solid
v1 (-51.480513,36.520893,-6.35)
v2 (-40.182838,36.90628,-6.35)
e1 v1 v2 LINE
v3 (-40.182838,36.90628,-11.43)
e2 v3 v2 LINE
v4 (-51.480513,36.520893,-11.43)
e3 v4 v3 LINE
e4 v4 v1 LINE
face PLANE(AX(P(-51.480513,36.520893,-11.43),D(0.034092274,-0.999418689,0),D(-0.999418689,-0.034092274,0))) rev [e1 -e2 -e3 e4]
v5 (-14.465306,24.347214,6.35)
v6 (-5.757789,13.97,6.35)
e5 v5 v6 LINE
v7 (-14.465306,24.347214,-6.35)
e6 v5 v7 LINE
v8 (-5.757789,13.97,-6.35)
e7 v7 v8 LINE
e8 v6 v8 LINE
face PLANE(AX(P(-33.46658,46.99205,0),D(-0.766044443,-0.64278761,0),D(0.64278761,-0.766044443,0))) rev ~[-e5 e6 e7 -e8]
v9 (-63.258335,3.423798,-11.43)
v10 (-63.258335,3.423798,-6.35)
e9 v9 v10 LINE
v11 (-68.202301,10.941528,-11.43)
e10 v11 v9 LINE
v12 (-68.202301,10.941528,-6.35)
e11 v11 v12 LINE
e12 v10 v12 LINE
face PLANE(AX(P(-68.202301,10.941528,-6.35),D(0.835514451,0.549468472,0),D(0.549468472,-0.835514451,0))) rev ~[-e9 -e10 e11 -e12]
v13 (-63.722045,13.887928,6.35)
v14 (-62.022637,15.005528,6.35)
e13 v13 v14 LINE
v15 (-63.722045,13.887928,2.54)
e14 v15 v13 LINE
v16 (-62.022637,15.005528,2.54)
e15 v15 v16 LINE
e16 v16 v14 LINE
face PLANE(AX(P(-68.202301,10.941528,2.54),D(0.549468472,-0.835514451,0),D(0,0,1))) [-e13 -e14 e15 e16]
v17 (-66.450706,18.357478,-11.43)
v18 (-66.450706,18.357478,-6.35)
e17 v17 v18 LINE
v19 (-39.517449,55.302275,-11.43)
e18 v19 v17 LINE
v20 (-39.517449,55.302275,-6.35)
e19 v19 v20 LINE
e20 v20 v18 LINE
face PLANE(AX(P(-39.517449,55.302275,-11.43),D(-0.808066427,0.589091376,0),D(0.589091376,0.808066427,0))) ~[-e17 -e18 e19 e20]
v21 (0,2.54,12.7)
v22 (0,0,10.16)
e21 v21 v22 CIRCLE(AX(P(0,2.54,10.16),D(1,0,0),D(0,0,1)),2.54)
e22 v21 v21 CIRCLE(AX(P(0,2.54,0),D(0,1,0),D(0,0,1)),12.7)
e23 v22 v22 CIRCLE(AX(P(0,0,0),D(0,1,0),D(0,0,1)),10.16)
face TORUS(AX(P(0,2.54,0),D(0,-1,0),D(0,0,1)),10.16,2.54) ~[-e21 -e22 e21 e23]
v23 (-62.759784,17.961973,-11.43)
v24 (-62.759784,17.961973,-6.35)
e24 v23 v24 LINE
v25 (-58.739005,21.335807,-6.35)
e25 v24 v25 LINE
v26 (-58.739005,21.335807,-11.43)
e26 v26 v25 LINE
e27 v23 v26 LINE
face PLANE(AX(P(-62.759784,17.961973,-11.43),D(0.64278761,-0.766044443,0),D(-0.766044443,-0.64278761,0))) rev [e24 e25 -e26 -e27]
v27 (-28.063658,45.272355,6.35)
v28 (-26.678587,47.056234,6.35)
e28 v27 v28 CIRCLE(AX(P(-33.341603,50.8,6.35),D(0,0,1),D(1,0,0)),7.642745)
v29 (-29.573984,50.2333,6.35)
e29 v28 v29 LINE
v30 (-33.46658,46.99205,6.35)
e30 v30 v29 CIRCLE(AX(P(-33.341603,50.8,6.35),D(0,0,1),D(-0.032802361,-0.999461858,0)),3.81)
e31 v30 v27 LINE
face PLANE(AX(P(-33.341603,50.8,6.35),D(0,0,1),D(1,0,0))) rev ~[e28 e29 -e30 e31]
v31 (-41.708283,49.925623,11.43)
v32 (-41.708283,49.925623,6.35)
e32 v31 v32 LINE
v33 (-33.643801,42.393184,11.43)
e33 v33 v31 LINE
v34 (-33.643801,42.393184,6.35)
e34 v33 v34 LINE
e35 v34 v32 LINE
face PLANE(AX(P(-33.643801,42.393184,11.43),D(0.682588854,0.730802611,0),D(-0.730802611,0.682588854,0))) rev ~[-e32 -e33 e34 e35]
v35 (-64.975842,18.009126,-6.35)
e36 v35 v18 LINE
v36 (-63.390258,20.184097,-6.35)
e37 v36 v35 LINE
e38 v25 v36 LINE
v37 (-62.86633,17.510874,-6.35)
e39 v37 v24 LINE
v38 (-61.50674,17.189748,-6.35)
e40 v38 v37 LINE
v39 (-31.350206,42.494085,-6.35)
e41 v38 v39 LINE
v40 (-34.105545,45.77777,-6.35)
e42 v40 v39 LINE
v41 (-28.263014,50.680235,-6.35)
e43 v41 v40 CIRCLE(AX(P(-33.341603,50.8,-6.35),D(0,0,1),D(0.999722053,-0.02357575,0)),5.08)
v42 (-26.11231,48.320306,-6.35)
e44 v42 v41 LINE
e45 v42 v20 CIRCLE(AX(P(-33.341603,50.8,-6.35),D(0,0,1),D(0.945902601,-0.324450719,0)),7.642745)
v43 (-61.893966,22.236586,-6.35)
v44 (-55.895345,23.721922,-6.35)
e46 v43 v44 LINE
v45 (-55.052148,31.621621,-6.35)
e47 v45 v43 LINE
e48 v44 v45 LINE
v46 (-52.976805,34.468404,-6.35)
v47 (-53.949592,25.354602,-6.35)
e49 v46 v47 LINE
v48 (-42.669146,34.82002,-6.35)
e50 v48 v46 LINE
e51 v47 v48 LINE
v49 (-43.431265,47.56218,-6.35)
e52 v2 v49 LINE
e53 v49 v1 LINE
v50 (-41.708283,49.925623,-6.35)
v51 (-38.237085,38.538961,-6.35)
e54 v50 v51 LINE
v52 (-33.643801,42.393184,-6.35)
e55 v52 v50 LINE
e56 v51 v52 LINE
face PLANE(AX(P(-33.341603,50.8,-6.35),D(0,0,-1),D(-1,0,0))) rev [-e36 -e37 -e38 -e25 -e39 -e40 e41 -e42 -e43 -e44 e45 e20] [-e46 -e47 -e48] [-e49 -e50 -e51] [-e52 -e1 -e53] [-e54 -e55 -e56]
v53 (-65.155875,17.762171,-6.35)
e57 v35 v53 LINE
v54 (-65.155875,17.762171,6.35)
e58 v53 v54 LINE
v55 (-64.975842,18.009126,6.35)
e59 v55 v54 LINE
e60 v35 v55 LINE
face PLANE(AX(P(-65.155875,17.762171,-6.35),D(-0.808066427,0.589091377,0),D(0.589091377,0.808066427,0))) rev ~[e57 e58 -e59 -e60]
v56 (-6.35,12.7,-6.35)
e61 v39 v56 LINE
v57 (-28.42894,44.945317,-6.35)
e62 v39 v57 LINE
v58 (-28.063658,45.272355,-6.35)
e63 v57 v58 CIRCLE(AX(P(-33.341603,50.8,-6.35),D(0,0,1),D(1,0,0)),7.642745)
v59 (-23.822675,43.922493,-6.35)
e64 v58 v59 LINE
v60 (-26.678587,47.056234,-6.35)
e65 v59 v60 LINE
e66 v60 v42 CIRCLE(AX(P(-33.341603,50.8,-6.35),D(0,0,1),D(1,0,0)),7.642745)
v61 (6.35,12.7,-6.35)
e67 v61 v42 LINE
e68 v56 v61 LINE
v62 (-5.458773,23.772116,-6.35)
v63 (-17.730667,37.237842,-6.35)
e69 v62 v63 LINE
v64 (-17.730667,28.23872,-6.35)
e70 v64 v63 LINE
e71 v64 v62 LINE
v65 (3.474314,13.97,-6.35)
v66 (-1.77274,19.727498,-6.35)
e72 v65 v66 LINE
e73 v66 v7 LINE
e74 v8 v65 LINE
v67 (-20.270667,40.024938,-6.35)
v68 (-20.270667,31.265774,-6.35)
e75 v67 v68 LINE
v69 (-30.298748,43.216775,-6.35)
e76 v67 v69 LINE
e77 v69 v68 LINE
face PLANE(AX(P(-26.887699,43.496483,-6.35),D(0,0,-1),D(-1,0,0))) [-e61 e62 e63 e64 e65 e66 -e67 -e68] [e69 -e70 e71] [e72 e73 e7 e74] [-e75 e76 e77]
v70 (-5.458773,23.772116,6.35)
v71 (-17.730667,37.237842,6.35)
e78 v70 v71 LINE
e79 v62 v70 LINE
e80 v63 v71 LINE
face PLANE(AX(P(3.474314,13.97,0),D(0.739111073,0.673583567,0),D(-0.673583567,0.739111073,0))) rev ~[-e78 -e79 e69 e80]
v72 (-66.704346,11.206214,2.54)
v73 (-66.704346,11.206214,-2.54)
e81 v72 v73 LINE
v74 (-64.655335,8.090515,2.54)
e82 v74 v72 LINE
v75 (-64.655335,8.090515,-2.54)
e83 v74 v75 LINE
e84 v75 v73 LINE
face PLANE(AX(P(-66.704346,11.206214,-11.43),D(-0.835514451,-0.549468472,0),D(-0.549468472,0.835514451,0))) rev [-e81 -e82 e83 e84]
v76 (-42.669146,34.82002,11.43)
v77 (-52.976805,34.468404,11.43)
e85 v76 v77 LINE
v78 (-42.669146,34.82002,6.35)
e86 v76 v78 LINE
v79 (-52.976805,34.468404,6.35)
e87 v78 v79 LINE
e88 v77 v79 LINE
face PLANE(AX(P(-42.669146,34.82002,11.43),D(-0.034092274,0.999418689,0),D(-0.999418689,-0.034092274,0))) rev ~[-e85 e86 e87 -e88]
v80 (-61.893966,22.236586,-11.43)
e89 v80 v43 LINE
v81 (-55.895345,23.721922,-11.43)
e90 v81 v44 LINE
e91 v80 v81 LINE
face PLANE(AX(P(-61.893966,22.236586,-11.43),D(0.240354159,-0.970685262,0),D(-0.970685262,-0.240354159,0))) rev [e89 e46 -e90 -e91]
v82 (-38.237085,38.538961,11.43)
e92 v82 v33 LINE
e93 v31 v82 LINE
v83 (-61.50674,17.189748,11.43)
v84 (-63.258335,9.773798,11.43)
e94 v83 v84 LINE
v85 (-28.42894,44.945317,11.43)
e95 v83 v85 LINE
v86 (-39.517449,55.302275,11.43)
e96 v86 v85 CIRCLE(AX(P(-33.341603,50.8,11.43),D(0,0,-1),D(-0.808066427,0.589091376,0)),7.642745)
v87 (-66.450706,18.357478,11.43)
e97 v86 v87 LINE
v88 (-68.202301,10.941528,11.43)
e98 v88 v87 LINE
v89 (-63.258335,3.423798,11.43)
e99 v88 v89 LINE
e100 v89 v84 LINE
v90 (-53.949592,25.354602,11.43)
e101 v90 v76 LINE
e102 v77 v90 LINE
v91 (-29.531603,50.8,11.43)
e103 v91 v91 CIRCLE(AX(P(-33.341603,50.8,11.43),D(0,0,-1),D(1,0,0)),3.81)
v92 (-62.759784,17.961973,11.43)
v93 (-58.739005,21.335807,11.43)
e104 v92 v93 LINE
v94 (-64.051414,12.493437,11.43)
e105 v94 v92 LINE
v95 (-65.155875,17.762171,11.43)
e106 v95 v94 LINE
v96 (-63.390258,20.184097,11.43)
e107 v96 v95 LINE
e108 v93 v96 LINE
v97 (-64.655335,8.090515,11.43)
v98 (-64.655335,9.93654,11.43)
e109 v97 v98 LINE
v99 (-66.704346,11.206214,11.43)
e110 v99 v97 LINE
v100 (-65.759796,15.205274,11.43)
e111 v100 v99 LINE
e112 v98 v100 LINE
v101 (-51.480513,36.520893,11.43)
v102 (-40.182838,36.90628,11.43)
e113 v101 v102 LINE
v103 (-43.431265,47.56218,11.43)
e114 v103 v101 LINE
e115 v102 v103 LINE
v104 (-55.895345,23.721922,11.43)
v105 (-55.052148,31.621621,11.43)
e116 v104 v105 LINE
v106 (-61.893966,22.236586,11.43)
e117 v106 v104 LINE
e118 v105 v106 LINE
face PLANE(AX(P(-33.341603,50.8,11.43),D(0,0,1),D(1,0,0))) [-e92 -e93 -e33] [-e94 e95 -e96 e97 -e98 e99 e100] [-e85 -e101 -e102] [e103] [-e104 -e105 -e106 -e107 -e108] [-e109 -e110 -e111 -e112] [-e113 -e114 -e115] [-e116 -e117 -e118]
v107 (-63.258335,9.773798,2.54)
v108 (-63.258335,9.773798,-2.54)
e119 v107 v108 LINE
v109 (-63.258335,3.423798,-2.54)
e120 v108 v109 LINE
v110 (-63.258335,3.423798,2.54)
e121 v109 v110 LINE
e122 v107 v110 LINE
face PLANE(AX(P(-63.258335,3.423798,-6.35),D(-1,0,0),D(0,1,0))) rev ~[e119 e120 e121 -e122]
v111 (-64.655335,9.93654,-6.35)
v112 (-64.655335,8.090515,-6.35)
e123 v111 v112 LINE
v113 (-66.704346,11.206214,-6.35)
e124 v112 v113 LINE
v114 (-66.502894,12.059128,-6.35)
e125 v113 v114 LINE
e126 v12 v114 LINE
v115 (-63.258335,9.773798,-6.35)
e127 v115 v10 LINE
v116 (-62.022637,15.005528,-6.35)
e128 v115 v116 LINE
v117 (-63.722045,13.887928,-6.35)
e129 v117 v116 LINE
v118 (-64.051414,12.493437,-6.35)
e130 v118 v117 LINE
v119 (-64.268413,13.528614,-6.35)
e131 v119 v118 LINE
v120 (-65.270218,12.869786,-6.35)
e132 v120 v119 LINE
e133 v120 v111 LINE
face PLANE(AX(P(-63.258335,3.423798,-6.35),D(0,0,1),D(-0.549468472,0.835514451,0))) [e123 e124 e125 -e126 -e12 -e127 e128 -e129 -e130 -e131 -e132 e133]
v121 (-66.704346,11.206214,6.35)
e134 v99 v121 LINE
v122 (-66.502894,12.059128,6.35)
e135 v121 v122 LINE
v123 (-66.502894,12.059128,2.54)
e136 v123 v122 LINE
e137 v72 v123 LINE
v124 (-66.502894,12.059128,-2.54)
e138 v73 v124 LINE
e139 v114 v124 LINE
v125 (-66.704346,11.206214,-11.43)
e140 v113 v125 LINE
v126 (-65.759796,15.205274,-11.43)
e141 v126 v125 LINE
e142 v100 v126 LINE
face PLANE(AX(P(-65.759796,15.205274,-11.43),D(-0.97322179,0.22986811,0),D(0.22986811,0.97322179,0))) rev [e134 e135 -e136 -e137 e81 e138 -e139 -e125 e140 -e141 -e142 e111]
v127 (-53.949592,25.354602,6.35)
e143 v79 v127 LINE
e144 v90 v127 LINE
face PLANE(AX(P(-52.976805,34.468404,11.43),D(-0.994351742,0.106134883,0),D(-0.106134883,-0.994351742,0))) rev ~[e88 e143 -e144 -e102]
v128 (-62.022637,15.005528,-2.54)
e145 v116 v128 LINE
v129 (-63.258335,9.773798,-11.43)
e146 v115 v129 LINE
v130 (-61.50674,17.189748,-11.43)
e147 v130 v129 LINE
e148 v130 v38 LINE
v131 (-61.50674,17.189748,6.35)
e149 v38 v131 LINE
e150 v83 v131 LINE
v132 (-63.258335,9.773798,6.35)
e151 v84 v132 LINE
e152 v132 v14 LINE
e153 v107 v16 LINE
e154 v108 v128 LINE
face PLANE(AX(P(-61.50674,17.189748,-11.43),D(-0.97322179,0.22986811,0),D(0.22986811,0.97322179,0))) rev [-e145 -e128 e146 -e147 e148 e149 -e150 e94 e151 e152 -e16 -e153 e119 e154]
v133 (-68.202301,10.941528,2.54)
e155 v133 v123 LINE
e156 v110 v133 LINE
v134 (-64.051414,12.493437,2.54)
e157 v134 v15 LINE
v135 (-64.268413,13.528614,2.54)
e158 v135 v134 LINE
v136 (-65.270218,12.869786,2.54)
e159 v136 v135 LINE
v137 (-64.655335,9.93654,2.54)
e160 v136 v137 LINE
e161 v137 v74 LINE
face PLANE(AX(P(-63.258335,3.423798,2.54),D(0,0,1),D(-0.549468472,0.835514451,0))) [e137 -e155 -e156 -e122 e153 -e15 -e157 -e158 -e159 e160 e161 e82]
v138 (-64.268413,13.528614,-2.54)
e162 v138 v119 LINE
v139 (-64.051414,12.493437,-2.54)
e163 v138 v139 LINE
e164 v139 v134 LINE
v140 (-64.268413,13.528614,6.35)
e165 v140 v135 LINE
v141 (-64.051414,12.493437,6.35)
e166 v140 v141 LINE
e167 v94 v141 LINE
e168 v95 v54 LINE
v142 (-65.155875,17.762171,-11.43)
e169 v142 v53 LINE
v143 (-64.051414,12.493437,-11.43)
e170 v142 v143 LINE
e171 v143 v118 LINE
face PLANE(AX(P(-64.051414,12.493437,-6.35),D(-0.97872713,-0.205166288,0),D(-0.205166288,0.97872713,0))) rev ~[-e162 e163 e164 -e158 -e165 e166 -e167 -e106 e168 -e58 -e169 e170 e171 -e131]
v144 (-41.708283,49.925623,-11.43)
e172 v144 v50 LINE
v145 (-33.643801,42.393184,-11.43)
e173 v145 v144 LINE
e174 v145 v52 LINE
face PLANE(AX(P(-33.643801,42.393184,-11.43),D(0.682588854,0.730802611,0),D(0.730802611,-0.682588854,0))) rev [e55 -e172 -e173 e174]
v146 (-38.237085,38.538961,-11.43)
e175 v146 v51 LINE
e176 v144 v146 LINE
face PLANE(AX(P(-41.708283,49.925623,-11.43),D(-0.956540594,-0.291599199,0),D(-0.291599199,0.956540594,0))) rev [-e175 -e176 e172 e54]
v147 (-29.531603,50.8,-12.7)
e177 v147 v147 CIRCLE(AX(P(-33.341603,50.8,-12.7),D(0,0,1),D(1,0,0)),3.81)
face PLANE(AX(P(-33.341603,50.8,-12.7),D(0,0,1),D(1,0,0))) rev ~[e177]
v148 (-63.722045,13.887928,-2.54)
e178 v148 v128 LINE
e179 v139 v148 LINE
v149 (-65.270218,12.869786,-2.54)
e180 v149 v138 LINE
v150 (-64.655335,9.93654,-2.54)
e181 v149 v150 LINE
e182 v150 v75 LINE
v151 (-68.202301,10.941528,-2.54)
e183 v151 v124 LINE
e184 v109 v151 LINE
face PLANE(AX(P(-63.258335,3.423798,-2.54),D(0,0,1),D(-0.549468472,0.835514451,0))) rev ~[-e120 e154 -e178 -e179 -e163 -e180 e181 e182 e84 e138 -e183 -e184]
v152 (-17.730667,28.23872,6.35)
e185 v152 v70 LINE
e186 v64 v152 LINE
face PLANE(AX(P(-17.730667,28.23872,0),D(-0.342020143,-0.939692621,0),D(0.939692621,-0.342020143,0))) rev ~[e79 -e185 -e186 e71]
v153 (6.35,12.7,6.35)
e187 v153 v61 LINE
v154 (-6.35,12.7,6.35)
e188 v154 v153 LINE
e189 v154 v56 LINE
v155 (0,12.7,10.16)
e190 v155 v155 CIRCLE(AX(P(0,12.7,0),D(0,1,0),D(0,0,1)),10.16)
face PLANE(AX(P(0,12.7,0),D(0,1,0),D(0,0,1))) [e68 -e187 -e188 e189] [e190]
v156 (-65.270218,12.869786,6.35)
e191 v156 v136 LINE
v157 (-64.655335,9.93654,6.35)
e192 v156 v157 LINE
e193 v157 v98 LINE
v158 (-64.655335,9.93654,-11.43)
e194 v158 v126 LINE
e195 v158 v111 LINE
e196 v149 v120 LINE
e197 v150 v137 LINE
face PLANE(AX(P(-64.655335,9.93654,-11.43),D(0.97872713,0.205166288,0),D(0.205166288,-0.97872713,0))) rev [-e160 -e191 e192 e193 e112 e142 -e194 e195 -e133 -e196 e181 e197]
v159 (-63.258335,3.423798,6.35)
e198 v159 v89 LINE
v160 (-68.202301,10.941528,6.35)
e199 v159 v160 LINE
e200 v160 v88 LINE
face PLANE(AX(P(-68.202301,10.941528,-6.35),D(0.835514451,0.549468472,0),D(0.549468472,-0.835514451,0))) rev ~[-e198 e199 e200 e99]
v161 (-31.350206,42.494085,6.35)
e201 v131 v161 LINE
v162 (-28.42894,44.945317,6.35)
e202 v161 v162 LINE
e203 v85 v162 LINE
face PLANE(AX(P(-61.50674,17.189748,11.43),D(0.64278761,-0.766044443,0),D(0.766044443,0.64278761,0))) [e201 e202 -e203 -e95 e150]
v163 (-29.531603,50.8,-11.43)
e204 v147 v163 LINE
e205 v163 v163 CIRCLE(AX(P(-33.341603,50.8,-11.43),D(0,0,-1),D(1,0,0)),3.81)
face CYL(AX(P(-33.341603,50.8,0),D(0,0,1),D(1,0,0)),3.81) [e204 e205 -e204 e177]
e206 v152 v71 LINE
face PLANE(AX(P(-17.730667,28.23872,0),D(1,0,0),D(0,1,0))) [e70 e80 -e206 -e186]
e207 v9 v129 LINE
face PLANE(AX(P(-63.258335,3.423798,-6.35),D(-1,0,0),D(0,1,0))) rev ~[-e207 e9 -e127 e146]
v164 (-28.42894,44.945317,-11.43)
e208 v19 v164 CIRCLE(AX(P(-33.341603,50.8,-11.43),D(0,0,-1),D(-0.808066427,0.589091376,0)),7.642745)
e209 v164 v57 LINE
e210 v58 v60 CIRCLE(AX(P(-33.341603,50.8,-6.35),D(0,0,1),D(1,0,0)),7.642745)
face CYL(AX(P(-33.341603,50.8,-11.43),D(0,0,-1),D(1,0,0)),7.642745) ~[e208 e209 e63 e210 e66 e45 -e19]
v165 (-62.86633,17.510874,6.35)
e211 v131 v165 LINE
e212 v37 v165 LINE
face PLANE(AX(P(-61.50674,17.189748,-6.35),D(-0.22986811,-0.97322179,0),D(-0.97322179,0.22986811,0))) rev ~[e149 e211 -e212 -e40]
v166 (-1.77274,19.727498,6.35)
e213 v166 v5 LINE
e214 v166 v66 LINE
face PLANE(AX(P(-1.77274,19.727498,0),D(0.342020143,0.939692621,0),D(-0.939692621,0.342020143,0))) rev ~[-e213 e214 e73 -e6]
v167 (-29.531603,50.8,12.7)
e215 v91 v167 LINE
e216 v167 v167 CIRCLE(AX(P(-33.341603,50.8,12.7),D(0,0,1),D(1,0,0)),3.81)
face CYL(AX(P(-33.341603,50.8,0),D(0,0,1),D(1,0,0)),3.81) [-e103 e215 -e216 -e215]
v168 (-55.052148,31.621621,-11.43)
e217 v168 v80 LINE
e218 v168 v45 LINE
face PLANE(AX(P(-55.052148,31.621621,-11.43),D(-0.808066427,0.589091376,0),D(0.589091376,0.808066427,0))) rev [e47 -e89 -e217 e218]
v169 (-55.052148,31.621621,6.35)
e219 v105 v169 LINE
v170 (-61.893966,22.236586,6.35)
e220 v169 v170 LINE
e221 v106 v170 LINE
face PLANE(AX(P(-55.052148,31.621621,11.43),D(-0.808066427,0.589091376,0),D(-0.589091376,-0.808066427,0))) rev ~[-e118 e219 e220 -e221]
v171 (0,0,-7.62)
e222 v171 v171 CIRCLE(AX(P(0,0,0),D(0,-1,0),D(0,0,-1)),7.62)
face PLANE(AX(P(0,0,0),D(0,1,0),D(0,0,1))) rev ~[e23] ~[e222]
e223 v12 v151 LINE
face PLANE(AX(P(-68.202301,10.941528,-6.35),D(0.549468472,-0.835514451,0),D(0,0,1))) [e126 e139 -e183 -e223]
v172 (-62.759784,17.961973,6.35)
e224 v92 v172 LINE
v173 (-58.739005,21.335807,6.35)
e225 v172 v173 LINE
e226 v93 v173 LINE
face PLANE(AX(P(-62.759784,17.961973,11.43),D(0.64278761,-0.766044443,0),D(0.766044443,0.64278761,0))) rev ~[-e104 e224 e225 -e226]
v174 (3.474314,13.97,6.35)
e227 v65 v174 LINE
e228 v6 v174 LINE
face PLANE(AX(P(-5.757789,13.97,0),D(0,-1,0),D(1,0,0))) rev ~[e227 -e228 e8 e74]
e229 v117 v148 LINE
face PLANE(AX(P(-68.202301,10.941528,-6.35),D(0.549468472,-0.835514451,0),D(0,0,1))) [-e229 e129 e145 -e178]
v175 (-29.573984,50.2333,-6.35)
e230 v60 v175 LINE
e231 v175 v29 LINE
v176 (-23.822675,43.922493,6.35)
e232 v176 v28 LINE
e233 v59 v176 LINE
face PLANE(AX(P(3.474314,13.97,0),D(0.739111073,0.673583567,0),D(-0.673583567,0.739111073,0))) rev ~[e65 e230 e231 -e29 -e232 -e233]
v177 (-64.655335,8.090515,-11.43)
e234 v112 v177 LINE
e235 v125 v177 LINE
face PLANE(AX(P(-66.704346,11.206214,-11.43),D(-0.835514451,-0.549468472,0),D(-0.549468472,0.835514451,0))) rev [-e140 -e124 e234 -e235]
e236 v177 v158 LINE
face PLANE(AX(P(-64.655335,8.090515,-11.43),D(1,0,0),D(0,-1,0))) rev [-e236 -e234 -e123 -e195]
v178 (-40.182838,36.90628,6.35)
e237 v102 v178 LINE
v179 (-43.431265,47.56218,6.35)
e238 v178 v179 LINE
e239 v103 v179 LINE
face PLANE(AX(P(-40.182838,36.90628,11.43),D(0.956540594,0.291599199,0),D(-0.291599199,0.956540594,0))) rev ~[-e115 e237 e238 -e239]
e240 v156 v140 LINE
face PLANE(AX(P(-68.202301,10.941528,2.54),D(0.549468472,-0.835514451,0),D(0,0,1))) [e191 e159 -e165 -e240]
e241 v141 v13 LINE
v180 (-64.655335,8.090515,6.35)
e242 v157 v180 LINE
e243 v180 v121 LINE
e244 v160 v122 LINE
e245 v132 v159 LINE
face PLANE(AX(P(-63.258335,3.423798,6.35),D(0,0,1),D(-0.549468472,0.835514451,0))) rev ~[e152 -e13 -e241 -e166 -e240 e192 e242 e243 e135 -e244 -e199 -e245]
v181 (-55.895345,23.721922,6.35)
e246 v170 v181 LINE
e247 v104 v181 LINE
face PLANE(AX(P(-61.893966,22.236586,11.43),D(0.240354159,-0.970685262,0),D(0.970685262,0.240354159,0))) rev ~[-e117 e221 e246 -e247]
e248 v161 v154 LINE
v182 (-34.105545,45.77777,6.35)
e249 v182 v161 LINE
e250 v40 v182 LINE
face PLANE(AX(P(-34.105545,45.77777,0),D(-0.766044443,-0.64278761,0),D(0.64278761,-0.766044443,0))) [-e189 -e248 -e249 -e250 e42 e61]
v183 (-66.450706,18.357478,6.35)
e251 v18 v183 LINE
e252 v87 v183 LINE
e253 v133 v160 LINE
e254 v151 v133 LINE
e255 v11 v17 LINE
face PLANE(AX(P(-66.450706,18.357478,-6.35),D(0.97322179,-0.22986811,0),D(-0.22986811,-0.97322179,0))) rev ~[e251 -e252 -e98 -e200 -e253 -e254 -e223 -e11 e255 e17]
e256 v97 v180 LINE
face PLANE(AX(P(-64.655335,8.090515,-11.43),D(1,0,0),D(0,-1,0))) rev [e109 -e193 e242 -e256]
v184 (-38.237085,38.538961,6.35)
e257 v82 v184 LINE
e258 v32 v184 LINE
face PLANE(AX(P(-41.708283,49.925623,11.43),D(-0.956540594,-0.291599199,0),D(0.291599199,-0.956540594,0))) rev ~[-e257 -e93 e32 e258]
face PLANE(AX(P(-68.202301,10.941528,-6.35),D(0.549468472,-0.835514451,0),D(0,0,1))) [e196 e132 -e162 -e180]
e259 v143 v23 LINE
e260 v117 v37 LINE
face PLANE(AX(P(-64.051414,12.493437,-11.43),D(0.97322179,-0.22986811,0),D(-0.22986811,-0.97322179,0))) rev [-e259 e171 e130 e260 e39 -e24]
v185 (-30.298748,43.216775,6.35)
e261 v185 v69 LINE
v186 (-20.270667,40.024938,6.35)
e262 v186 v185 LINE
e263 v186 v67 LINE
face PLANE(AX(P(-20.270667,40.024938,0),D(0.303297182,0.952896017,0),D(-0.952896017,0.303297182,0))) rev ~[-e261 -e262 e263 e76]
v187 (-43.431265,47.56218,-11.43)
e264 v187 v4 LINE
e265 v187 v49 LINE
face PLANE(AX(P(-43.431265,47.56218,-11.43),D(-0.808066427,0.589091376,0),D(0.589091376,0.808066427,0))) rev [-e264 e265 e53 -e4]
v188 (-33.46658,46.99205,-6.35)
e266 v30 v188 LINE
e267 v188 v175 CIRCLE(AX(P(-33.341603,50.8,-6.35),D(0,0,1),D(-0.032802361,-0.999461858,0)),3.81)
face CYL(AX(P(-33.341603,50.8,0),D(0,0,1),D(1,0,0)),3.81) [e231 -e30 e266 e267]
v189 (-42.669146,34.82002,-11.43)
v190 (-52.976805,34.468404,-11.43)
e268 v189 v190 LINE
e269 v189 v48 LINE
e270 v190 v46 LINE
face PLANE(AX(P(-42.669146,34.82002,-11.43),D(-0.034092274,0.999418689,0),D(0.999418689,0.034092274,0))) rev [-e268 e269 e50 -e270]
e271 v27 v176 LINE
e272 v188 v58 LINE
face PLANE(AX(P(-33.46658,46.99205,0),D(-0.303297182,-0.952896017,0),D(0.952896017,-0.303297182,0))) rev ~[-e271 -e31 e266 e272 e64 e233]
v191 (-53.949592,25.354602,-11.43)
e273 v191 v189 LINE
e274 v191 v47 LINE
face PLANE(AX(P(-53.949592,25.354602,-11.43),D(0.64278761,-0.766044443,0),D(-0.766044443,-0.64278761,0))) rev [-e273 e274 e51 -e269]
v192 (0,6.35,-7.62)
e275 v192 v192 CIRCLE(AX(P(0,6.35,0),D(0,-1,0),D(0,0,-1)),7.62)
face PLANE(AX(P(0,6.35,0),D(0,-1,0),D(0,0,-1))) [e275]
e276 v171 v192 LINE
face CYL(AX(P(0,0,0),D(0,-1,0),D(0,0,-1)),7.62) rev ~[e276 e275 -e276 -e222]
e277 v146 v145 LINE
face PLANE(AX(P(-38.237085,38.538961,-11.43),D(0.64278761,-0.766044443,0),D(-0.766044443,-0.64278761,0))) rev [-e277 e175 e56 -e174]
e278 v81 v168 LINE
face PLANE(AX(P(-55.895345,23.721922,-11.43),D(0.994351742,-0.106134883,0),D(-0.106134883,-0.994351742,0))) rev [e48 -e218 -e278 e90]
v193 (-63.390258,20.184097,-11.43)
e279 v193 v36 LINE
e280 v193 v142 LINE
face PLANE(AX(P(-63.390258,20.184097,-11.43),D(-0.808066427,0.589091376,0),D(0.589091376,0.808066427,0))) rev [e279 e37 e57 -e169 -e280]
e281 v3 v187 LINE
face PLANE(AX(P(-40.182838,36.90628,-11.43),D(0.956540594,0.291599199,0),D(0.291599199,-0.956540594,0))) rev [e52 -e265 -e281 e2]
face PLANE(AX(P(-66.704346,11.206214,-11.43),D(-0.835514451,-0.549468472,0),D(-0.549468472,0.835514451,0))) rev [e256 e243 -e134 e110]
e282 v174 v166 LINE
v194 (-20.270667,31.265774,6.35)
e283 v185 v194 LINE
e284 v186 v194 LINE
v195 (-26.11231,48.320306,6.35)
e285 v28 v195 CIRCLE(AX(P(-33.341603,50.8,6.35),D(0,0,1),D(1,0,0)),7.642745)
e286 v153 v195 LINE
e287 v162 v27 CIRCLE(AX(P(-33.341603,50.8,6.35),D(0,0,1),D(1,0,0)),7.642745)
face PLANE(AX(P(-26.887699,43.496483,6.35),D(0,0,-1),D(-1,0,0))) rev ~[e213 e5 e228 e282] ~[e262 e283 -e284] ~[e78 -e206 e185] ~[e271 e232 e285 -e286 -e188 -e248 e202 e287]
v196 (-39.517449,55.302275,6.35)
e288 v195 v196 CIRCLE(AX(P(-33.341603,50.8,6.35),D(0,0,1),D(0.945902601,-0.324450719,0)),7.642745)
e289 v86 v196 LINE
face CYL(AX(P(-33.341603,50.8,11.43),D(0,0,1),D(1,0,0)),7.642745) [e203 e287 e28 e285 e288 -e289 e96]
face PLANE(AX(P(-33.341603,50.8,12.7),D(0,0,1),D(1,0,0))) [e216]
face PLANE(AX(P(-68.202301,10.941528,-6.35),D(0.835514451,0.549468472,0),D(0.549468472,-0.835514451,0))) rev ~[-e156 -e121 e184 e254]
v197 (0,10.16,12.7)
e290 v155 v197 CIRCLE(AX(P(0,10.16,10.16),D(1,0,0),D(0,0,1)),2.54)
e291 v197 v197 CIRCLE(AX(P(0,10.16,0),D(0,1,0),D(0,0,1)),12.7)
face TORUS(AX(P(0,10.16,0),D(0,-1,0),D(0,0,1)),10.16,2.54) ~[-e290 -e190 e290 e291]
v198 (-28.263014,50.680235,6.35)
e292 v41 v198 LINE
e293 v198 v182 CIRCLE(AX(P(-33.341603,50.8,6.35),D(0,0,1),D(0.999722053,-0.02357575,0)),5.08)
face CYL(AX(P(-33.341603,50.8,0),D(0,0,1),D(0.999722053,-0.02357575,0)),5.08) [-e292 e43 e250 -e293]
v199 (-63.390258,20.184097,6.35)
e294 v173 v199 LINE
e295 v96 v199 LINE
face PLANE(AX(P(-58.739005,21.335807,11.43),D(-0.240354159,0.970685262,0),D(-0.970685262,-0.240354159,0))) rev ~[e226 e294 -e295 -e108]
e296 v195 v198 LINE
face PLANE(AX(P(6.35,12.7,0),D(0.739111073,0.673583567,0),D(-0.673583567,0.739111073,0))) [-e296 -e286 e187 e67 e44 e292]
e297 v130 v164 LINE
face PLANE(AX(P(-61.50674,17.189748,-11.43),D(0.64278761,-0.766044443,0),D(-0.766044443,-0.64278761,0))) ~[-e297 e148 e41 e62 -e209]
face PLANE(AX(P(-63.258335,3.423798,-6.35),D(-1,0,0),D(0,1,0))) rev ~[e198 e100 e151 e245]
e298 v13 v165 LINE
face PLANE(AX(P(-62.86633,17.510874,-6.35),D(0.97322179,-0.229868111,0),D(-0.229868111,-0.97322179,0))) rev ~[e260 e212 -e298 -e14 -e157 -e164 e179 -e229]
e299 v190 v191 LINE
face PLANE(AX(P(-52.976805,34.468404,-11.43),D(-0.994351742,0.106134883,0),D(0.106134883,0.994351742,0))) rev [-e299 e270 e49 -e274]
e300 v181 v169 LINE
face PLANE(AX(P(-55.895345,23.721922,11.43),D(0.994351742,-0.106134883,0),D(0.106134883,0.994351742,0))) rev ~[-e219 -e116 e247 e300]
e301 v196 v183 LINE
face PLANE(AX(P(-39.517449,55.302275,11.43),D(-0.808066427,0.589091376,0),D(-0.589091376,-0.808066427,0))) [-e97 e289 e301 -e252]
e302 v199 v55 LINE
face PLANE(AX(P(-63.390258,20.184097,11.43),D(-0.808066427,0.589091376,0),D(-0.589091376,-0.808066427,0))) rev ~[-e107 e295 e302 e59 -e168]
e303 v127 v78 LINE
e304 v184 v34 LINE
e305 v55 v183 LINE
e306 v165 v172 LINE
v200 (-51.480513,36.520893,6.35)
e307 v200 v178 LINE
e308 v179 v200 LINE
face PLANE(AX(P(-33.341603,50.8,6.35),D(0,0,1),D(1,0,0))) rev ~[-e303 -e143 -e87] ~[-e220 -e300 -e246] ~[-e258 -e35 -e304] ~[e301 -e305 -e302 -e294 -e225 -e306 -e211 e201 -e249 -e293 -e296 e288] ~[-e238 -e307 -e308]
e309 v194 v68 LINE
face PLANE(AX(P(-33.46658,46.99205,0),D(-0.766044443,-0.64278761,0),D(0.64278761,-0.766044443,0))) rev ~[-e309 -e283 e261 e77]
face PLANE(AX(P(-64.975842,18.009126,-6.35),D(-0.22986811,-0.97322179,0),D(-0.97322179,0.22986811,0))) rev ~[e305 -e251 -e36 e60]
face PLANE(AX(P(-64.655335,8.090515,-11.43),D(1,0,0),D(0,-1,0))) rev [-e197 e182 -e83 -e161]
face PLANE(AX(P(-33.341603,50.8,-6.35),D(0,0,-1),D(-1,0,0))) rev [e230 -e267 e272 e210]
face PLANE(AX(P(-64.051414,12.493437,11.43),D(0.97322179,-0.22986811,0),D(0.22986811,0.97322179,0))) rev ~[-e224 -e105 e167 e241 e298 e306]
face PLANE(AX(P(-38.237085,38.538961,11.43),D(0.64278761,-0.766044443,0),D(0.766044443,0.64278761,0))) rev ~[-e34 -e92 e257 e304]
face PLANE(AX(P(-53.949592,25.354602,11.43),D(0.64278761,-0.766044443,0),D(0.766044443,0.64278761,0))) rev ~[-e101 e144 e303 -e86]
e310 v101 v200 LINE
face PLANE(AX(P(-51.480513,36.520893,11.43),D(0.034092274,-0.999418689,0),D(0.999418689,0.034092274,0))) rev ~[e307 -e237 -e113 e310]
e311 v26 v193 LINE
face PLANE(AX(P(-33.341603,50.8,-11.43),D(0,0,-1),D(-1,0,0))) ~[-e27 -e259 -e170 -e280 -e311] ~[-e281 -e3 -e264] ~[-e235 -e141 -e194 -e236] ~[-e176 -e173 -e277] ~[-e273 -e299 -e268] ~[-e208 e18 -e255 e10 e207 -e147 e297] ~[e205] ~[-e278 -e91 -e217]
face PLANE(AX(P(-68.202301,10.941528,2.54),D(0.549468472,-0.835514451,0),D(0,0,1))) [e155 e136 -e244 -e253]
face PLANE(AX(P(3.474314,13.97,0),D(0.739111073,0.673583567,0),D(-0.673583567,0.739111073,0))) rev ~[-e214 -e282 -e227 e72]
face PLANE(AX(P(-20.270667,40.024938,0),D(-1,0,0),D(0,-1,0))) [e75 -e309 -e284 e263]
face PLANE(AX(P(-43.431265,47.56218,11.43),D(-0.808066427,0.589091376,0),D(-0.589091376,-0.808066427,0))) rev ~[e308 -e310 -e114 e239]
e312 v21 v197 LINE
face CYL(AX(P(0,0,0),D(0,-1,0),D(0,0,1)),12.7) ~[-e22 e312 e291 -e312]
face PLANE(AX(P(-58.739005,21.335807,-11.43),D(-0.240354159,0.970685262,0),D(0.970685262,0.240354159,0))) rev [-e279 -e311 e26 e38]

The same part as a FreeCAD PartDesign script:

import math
import FreeCAD as App
import Part
import Sketcher
Q = App.Units.Quantity


def edges_at(feature, points):
    """Names of the edges that pass closest to the given points."""
    edges = feature.Shape.Edges
    near = lambda p: min(range(len(edges)), key=lambda i: edges[i].distToShape(Part.Vertex(*p))[0])
    return sorted({f"Edge{near(p) + 1}" for p in points})

doc = App.newDocument("Part")
body = doc.addObject("PartDesign::Body", "Body")

# Sketch on XZ plane
sketch1 = body.newObject("Sketcher::SketchObject", "Sketch")
sketch1.AttachmentSupport = (doc.getObject("XZ_Plane"), [""])
sketch1.MapMode = "FlatFace"
sketch1.addGeometry(Part.Circle(App.Vector(0, 0, 0), App.Vector(0, 0, 1), 13), False)
sketch1.addConstraint([
    Sketcher.Constraint("Coincident", 0, 3, -1, 1),
    Sketcher.Constraint("Diameter", 0, Q("1 in")),
])
pad1 = body.newObject("PartDesign::Pad", "Pad")
pad1.Profile = sketch1
pad1.Length = Q("0.5 in")
pad1.Reversed = True

# Sketch on XY plane
sketch2 = body.newObject("Sketcher::SketchObject", "Sketch001")
sketch2.AttachmentSupport = (doc.getObject("XY_Plane"), [""])
sketch2.MapMode = "FlatFace"
sketch2.addGeometry([
    Part.LineSegment(App.Vector(6, 13, 0), App.Vector(-28, 51, 0)),
    Part.ArcOfCircle(Part.Circle(App.Vector(-33, 51, 0), App.Vector(0, 0, 1), 5), math.radians(-1), math.radians(261)),
    Part.LineSegment(App.Vector(-34, 46, 0), App.Vector(-6, 13, 0)),
    Part.LineSegment(App.Vector(-6, 13, 0), App.Vector(6, 13, 0)),
], False)
sketch2.addConstraint([
    Sketcher.Constraint("Coincident", 0, 2, 1, 1),
    Sketcher.Constraint("Coincident", 1, 2, 2, 1),
    Sketcher.Constraint("Coincident", 2, 2, 3, 1),
    Sketcher.Constraint("Coincident", 3, 2, 0, 1),
    Sketcher.Constraint("Horizontal", 3),
    Sketcher.Constraint("Radius", 1, Q("0.2 in")),
    Sketcher.Constraint("DistanceX", 3, 1, 3, 2, Q("0.5 in")),
    Sketcher.Constraint("DistanceY", -1, 1, 1, 3, Q("2 in")),
    Sketcher.Constraint("Angle", 2, Q("-50 deg")),
    Sketcher.Constraint("DistanceY", -1, 1, 2, 2, Q("0.5 in")),
    Sketcher.Constraint("DistanceX", 2, 2, -1, 1, Q("0.25 in")),
    Sketcher.Constraint("Distance", 0, Q("51.38637 mm")),
    Sketcher.Constraint("DistanceY", -1, 1, 1, 2, Q("45.77777 mm")),
])
pad2 = body.newObject("PartDesign::Pad", "Pad001")
pad2.Profile = sketch2
pad2.Length = Q("0.5 in")
pad2.Midplane = True

# Sketch on XY plane
sketch3 = body.newObject("Sketcher::SketchObject", "Sketch002")
sketch3.AttachmentSupport = (doc.getObject("XY_Plane"), [""])
sketch3.MapMode = "FlatFace"
sketch3.addGeometry([
    Part.LineSegment(App.Vector(-5.8, 14, 0), App.Vector(3.5, 14, 0)),
    Part.LineSegment(App.Vector(3.5, 14, 0), App.Vector(-29.6, 50.2, 0)),
    Part.ArcOfCircle(Part.Circle(App.Vector(-33.3, 50.8, 0), App.Vector(0, 0, 1), 3.8), math.radians(-9), math.radians(268)),
    Part.LineSegment(App.Vector(-33.5, 47, 0), App.Vector(-5.8, 14, 0)),
], False)
sketch3.addConstraint([
    Sketcher.Constraint("Coincident", 0, 2, 1, 1),
    Sketcher.Constraint("Coincident", 1, 2, 2, 1),
    Sketcher.Constraint("Coincident", 2, 2, 3, 1),
    Sketcher.Constraint("Coincident", 3, 2, 0, 1),
    Sketcher.Constraint("Horizontal", 0),
    Sketcher.Constraint("Radius", 2, Q("0.15 in")),
    Sketcher.Constraint("DistanceY", -1, 1, 2, 3, Q("2 in")),
    Sketcher.Constraint("Angle", 3, Q("-50 deg")),
    Sketcher.Constraint("DistanceY", -1, 1, 0, 2, Q("0.55 in")),
    Sketcher.Constraint("DistanceY", -1, 1, 1, 2, Q("50.2333 mm")),
    Sketcher.Constraint("DistanceX", 1, 2, 0, 2, Q("33.048298 mm")),
    Sketcher.Constraint("DistanceX", 0, 1, 0, 2, Q("9.232104 mm")),
    Sketcher.Constraint("DistanceX", 2, 2, -1, 1, Q("33.46658 mm")),
])
pocket1 = body.newObject("PartDesign::Pocket", "Pocket")
pocket1.Profile = sketch3
pocket1.Length = Q("0.6 in")
pocket1.Midplane = True

# Sketch on XY plane
sketch4 = body.newObject("Sketcher::SketchObject", "Sketch003")
sketch4.AttachmentSupport = (doc.getObject("XY_Plane"), [""])
sketch4.MapMode = "FlatFace"
sketch4.addGeometry([
    Part.LineSegment(App.Vector(-20.270667, 40.024938, 0), App.Vector(-23.822675, 43.922493, 0)),  # 0
    Part.LineSegment(App.Vector(-23.822675, 43.922493, 0), App.Vector(-33.46658, 46.99205, 0)),  # 1
    Part.LineSegment(App.Vector(-33.46658, 46.99205, 0), App.Vector(-30.298748, 43.216775, 0)),  # 2
    Part.LineSegment(App.Vector(-30.298748, 43.216775, 0), App.Vector(-20.270667, 40.024938, 0)),  # 3
    Part.LineSegment(App.Vector(-20.270667, 40.024938, 0), App.Vector(-20.270667, 31.265774, 0)),  # 4
    Part.LineSegment(App.Vector(-20.270667, 31.265774, 0), App.Vector(-17.730667, 28.23872, 0)),  # 5
    Part.LineSegment(App.Vector(-17.730667, 28.23872, 0), App.Vector(-17.730667, 37.237842, 0)),  # 6
    Part.LineSegment(App.Vector(-17.730667, 37.237842, 0), App.Vector(-20.270667, 40.024938, 0)),  # 7
    Part.LineSegment(App.Vector(-1.77274, 19.727498, 0), App.Vector(-5.458773, 23.772116, 0)),  # 8
    Part.LineSegment(App.Vector(-5.458773, 23.772116, 0), App.Vector(-17.730667, 28.23872, 0)),  # 9
    Part.LineSegment(App.Vector(-17.730667, 28.23872, 0), App.Vector(-14.465306, 24.347214, 0)),  # 10
    Part.LineSegment(App.Vector(-14.465306, 24.347214, 0), App.Vector(-1.77274, 19.727498, 0)),  # 11
], False)
sketch4.addConstraint([
    Sketcher.Constraint("Coincident", 0, 2, 1, 1),
    Sketcher.Constraint("Coincident", 1, 2, 2, 1),
    Sketcher.Constraint("Coincident", 2, 2, 3, 1),
    Sketcher.Constraint("Coincident", 3, 2, 0, 1),
    Sketcher.Constraint("Coincident", 4, 2, 5, 1),
    Sketcher.Constraint("Coincident", 5, 2, 6, 1),
    Sketcher.Constraint("Coincident", 6, 2, 7, 1),
    Sketcher.Constraint("Coincident", 7, 2, 4, 1),
    Sketcher.Constraint("Coincident", 8, 2, 9, 1),
    Sketcher.Constraint("Coincident", 9, 2, 10, 1),
    Sketcher.Constraint("Coincident", 10, 2, 11, 1),
    Sketcher.Constraint("Coincident", 11, 2, 8, 1),
    Sketcher.Constraint("Vertical", 4),
    Sketcher.Constraint("Vertical", 6),
    Sketcher.Constraint("Coincident", 7, 2, 3, 2),
    Sketcher.Constraint("Coincident", 9, 2, 5, 2),
    Sketcher.Constraint("Distance", 10, Q("0.2 in")),
    Sketcher.Constraint("DistanceX", 4, 2, 5, 2, Q("0.1 in")),
    Sketcher.Constraint("Distance", 0, Q("5.2733 mm")),
    Sketcher.Constraint("DistanceY", 4, 2, 2, 2, Q("11.951002 mm")),
    Sketcher.Constraint("DistanceY", 8, 2, 10, 2, Q("0.575098 mm")),
    Sketcher.Constraint("Distance", 2, Q("4.928271 mm")),
    Sketcher.Constraint("Distance", 5, Q("3.951539 mm")),
    Sketcher.Constraint("DistanceY", 4, 2, 4, 1, Q("8.759165 mm")),
    Sketcher.Constraint("DistanceY", 6, 1, 6, 2, Q("8.999123 mm")),
    Sketcher.Constraint("DistanceX", 1, 2, -1, 1, Q("33.46658 mm")),
    Sketcher.Constraint("DistanceY", -1, 1, 1, 2, Q("46.99205 mm")),
    Sketcher.Constraint("DistanceY", -1, 1, 3, 2, Q("40.024938 mm")),
    Sketcher.Constraint("DistanceX", 11, 2, -1, 1, Q("1.77274 mm")),
    Sketcher.Constraint("DistanceX", 0, 2, 3, 2, Q("3.552008 mm")),
    Sketcher.Constraint("DistanceX", 2, 2, 3, 2, Q("10.028081 mm")),
    Sketcher.Constraint("DistanceX", 5, 2, 10, 2, Q("3.265361 mm")),
    Sketcher.Constraint("DistanceY", 11, 2, 8, 2, Q("4.044618 mm")),
    Sketcher.Constraint("Distance", 8, Q("5.472274 mm")),
])
pad3 = body.newObject("PartDesign::Pad", "Pad002")
pad3.Profile = sketch4
pad3.Length = Q("0.5 in")
pad3.Midplane = True

# Sketch on XY plane
sketch5 = body.newObject("Sketcher::SketchObject", "Sketch004")
sketch5.AttachmentSupport = (doc.getObject("XY_Plane"), [""])
sketch5.MapMode = "FlatFace"
sketch5.addGeometry(Part.Circle(App.Vector(-33.3, 50.8, 0), App.Vector(0, 0, 1), 3.8), False)
sketch5.addConstraint([
    Sketcher.Constraint("Diameter", 0, Q("0.3 in")),
    Sketcher.Constraint("DistanceY", -1, 1, 0, 3, Q("2 in")),
    Sketcher.Constraint("DistanceX", 0, 3, -1, 1, Q("33.341603 mm")),
])
pad4 = body.newObject("PartDesign::Pad", "Pad003")
pad4.Profile = sketch5
pad4.Length = Q("1 in")
pad4.Midplane = True

# Sketch on XY plane
sketch6 = body.newObject("Sketcher::SketchObject", "Sketch005")
sketch6.AttachmentSupport = (doc.getObject("XY_Plane"), [""])
sketch6.MapMode = "FlatFace"
sketch6.AttachmentOffset = App.Placement(App.Vector(0, 0, 0.45 * 25.4), App.Rotation())
sketch6.addGeometry([
    Part.LineSegment(App.Vector(-39.5, 55.3, 0), App.Vector(-66.5, 18.4, 0)),  # 0
    Part.LineSegment(App.Vector(-66.5, 18.4, 0), App.Vector(-68.2, 10.9, 0)),  # 1
    Part.LineSegment(App.Vector(-68.2, 10.9, 0), App.Vector(-63.3, 3.4, 0)),  # 2
    Part.LineSegment(App.Vector(-63.3, 3.4, 0), App.Vector(-63.3, 9.8, 0)),  # 3
    Part.LineSegment(App.Vector(-63.3, 9.8, 0), App.Vector(-61.5, 17.2, 0)),  # 4
    Part.LineSegment(App.Vector(-61.5, 17.2, 0), App.Vector(-28.4, 44.9, 0)),  # 5
    Part.ArcOfCircle(Part.Circle(App.Vector(-33.3, 50.8, 0), App.Vector(0, 0, 1), 7.6), math.radians(-50), math.radians(144)),  # 6
    Part.Circle(App.Vector(-33.3, 50.8, 0), App.Vector(0, 0, 1), 3.8),  # 7
], False)
sketch6.addConstraint([
    Sketcher.Constraint("Coincident", 0, 2, 1, 1),
    Sketcher.Constraint("Coincident", 1, 2, 2, 1),
    Sketcher.Constraint("Coincident", 2, 2, 3, 1),
    Sketcher.Constraint("Coincident", 3, 2, 4, 1),
    Sketcher.Constraint("Coincident", 4, 2, 5, 1),
    Sketcher.Constraint("Tangent", 5, 2, 6, 1),
    Sketcher.Constraint("Tangent", 6, 2, 0, 1),
    Sketcher.Constraint("Vertical", 3),
    Sketcher.Constraint("Coincident", 7, 3, 6, 3),
    Sketcher.Constraint("Parallel", 1, 4),
    Sketcher.Constraint("Equal", 1, 4),
    Sketcher.Constraint("Diameter", 7, Q("0.3 in")),
    Sketcher.Constraint("DistanceY", -1, 1, 6, 3, Q("2 in")),
    Sketcher.Constraint("Angle", 5, Q("40 deg")),
    Sketcher.Constraint("Distance", 0, Q("1.8 in")),
    Sketcher.Constraint("Distance", 1, Q("0.3 in")),
    Sketcher.Constraint("Distance", 5, Q("1.7 in")),
    Sketcher.Constraint("DistanceY", 3, 1, 3, 2, Q("0.25 in")),
    Sketcher.Constraint("Radius", 6, Q("7.642745 mm")),
    Sketcher.Constraint("DistanceX", 1, 2, -1, 1, Q("68.202301 mm")),
    Sketcher.Constraint("DistanceY", -1, 1, 2, 2, Q("3.423798 mm")),
    Sketcher.Constraint("DistanceX", 1, 2, 6, 3, Q("34.860699 mm")),
])
pad5 = body.newObject("PartDesign::Pad", "Pad004")
pad5.Profile = sketch6
pad5.Length = Q("0.2 in")
pad5.Reversed = True

# Sketch on XY plane
sketch7 = body.newObject("Sketcher::SketchObject", "Sketch006")
sketch7.AttachmentSupport = (doc.getObject("XY_Plane"), [""])
sketch7.MapMode = "FlatFace"
sketch7.AttachmentOffset = App.Placement(App.Vector(0, 0, 0.45 * 25.4), App.Rotation())
sketch7.addGeometry([
    Part.LineSegment(App.Vector(-43.4, 47.6, 0), App.Vector(-51.5, 36.5, 0)),  # 0
    Part.LineSegment(App.Vector(-51.5, 36.5, 0), App.Vector(-40.2, 36.9, 0)),  # 1
    Part.LineSegment(App.Vector(-40.2, 36.9, 0), App.Vector(-43.4, 47.6, 0)),  # 2
    Part.LineSegment(App.Vector(-53, 34.5, 0), App.Vector(-53.9, 25.4, 0)),  # 3
    Part.LineSegment(App.Vector(-53.9, 25.4, 0), App.Vector(-42.7, 34.8, 0)),  # 4
    Part.LineSegment(App.Vector(-42.7, 34.8, 0), App.Vector(-53, 34.5, 0)),  # 5
    Part.LineSegment(App.Vector(-55.1, 31.6, 0), App.Vector(-61.9, 22.2, 0)),  # 6
    Part.LineSegment(App.Vector(-61.9, 22.2, 0), App.Vector(-55.9, 23.7, 0)),  # 7
    Part.LineSegment(App.Vector(-55.9, 23.7, 0), App.Vector(-55.1, 31.6, 0)),  # 8
    Part.LineSegment(App.Vector(-64.7, 9.9, 0), App.Vector(-65.8, 15.2, 0)),  # 9
    Part.LineSegment(App.Vector(-65.8, 15.2, 0), App.Vector(-66.7, 11.2, 0)),  # 10
    Part.LineSegment(App.Vector(-66.7, 11.2, 0), App.Vector(-64.7, 8.1, 0)),  # 11
    Part.LineSegment(App.Vector(-64.7, 8.1, 0), App.Vector(-64.7, 9.9, 0)),  # 12
    Part.LineSegment(App.Vector(-63.4, 20.2, 0), App.Vector(-65.2, 17.8, 0)),  # 13
    Part.LineSegment(App.Vector(-65.2, 17.8, 0), App.Vector(-64.1, 12.5, 0)),  # 14
    Part.LineSegment(App.Vector(-64.1, 12.5, 0), App.Vector(-62.8, 18, 0)),  # 15
    Part.LineSegment(App.Vector(-62.8, 18, 0), App.Vector(-58.7, 21.3, 0)),  # 16
    Part.LineSegment(App.Vector(-58.7, 21.3, 0), App.Vector(-63.4, 20.2, 0)),  # 17
    Part.LineSegment(App.Vector(-41.7, 49.9, 0), App.Vector(-38.2, 38.5, 0)),  # 18
    Part.LineSegment(App.Vector(-38.2, 38.5, 0), App.Vector(-33.6, 42.4, 0)),  # 19
    Part.LineSegment(App.Vector(-33.6, 42.4, 0), App.Vector(-41.7, 49.9, 0)),  # 20
], False)
sketch7.addConstraint([
    Sketcher.Constraint("Coincident", 0, 2, 1, 1),
    Sketcher.Constraint("Coincident", 1, 2, 2, 1),
    Sketcher.Constraint("Coincident", 2, 2, 0, 1),
    Sketcher.Constraint("Coincident", 3, 2, 4, 1),
    Sketcher.Constraint("Coincident", 4, 2, 5, 1),
    Sketcher.Constraint("Coincident", 5, 2, 3, 1),
    Sketcher.Constraint("Coincident", 6, 2, 7, 1),
    Sketcher.Constraint("Coincident", 7, 2, 8, 1),
    Sketcher.Constraint("Coincident", 8, 2, 6, 1),
    Sketcher.Constraint("Coincident", 9, 2, 10, 1),
    Sketcher.Constraint("Coincident", 10, 2, 11, 1),
    Sketcher.Constraint("Coincident", 11, 2, 12, 1),
    Sketcher.Constraint("Coincident", 12, 2, 9, 1),
    Sketcher.Constraint("Coincident", 13, 2, 14, 1),
    Sketcher.Constraint("Coincident", 14, 2, 15, 1),
    Sketcher.Constraint("Coincident", 15, 2, 16, 1),
    Sketcher.Constraint("Coincident", 16, 2, 17, 1),
    Sketcher.Constraint("Coincident", 17, 2, 13, 1),
    Sketcher.Constraint("Coincident", 18, 2, 19, 1),
    Sketcher.Constraint("Coincident", 19, 2, 20, 1),
    Sketcher.Constraint("Coincident", 20, 2, 18, 1),
    Sketcher.Constraint("Vertical", 12),
    Sketcher.Constraint("Parallel", 1, 5),
    Sketcher.Constraint("Parallel", 0, 6),
    Sketcher.Constraint("Parallel", 3, 8),
    Sketcher.Constraint("Parallel", 6, 13),
    Sketcher.Constraint("Parallel", 9, 14),
    Sketcher.Constraint("Parallel", 10, 15),
    Sketcher.Constraint("Parallel", 4, 16),
    Sketcher.Constraint("Parallel", 7, 17),
    Sketcher.Constraint("Parallel", 2, 18),
    Sketcher.Constraint("Parallel", 16, 19),
    Sketcher.Constraint("Equal", 9, 14),
    Sketcher.Constraint("Angle", 4, Q("40 deg")),
    Sketcher.Constraint("DistanceX", 19, 2, -1, 1, Q("33.643801 mm")),
    Sketcher.Constraint("DistanceY", 1, 2, 2, 2, Q("10.6559 mm")),
    Sketcher.Constraint("DistanceY", 3, 2, 5, 2, Q("9.113802 mm")),
    Sketcher.Constraint("DistanceX", 7, 2, 4, 2, Q("13.226198 mm")),
    Sketcher.Constraint("DistanceY", 7, 2, 4, 2, Q("11.098098 mm")),
    Sketcher.Constraint("DistanceY", 7, 2, 8, 2, Q("7.899699 mm")),
    Sketcher.Constraint("DistanceX", 10, 2, 7, 2, Q("10.809001 mm")),
    Sketcher.Constraint("DistanceY", 11, 2, 10, 2, Q("3.115699 mm")),
    Sketcher.Constraint("DistanceY", 9, 2, 15, 2, Q("2.756699 mm")),
    Sketcher.Constraint("Distance", 2, Q("11.140039 mm")),
    Sketcher.Constraint("Distance", 3, Q("9.165571 mm")),
    Sketcher.Constraint("Distance", 7, Q("6.17978 mm")),
    Sketcher.Constraint("Distance", 9, Q("5.383251 mm")),
    Sketcher.Constraint("Distance", 11, Q("3.729079 mm")),
    Sketcher.Constraint("Distance", 17, Q("4.791721 mm")),
    Sketcher.Constraint("DistanceY", 12, 1, 12, 2, Q("1.846025 mm")),
    Sketcher.Constraint("DistanceX", 1, 2, -1, 1, Q("40.182838 mm")),
    Sketcher.Constraint("DistanceY", -1, 1, 1, 2, Q("36.90628 mm")),
    Sketcher.Constraint("DistanceX", 3, 2, -1, 1, Q("53.949592 mm")),
    Sketcher.Constraint("DistanceY", -1, 1, 4, 2, Q("34.82002 mm")),
    Sketcher.Constraint("DistanceX", 8, 2, -1, 1, Q("55.052148 mm")),
    Sketcher.Constraint("DistanceY", -1, 1, 12, 2, Q("9.93654 mm")),
    Sketcher.Constraint("DistanceY", -1, 1, 13, 2, Q("17.762171 mm")),
    Sketcher.Constraint("DistanceX", 17, 2, -1, 1, Q("63.390258 mm")),
    Sketcher.Constraint("DistanceY", -1, 1, 18, 2, Q("38.538961 mm")),
    Sketcher.Constraint("DistanceX", 0, 2, 2, 2, Q("8.049248 mm")),
    Sketcher.Constraint("DistanceX", 9, 2, 6, 2, Q("3.86583 mm")),
    Sketcher.Constraint("DistanceX", 4, 2, 18, 2, Q("4.432061 mm")),
    Sketcher.Constraint("DistanceX", 2, 2, 20, 2, Q("1.722982 mm")),
])
pocket2 = body.newObject("PartDesign::Pocket", "Pocket001")
pocket2.Profile = sketch7
pocket2.Type = "ThroughAll"
body2 = doc.addObject("PartDesign::Body", "Body001")
doc.recompute()

body2.BaseFeature = body
doc.recompute()

mirroring = doc.addObject("Part::Mirroring", "Mirroring")
mirroring.Source = body
mirroring.Base = App.Vector(0, 0, 0)
mirroring.Normal = App.Vector(0, 0, 1)
body3 = doc.addObject("PartDesign::Body", "Body002")
body3.BaseFeature = mirroring
boolean = body2.newObject("PartDesign::Boolean", "Boolean")
boolean.Type = "Fuse"
boolean.addObjects([body3])
doc.recompute()

# Sketch on XZ plane
sketch8 = body2.newObject("Sketcher::SketchObject", "Sketch007")
sketch8.AttachmentSupport = (doc.getObject("XZ_Plane001"), [""])
sketch8.MapMode = "FlatFace"
sketch8.addGeometry(Part.Circle(App.Vector(0, 0, 0), App.Vector(0, 0, 1), 8), False)
sketch8.addConstraint([
    Sketcher.Constraint("Coincident", 0, 3, -1, 1),
    Sketcher.Constraint("Diameter", 0, Q("0.6 in")),
])
pocket3 = body2.newObject("PartDesign::Pocket", "Pocket002")
pocket3.Profile = sketch8
pocket3.Length = Q("0.25 in")

# Sketch on XY plane
sketch9 = body2.newObject("Sketcher::SketchObject", "Sketch008")
sketch9.AttachmentSupport = (doc.getObject("XY_Plane001"), [""])
sketch9.MapMode = "FlatFace"
sketch9.AttachmentOffset = App.Placement(App.Vector(0, 0, -0.25 * 25.4), App.Rotation())
sketch9.addGeometry([
    Part.LineSegment(App.Vector(-64.98, 18.01, 0), App.Vector(-66.45, 18.36, 0)),  # 0
    Part.LineSegment(App.Vector(-66.45, 18.36, 0), App.Vector(-68.2, 10.94, 0)),  # 1
    Part.LineSegment(App.Vector(-68.2, 10.94, 0), App.Vector(-63.26, 3.42, 0)),  # 2
    Part.LineSegment(App.Vector(-63.26, 3.42, 0), App.Vector(-63.26, 9.77, 0)),  # 3
    Part.LineSegment(App.Vector(-63.26, 9.77, 0), App.Vector(-61.51, 17.19, 0)),  # 4
    Part.LineSegment(App.Vector(-61.51, 17.19, 0), App.Vector(-62.87, 17.51, 0)),  # 5
    Part.LineSegment(App.Vector(-62.87, 17.51, 0), App.Vector(-64.05, 12.49, 0)),  # 6
    Part.LineSegment(App.Vector(-64.05, 12.49, 0), App.Vector(-65.16, 17.76, 0)),  # 7
    Part.LineSegment(App.Vector(-65.16, 17.76, 0), App.Vector(-64.98, 18.01, 0)),  # 8
    Part.LineSegment(App.Vector(-64.66, 9.94, 0), App.Vector(-64.66, 8.09, 0)),  # 9
    Part.LineSegment(App.Vector(-64.66, 8.09, 0), App.Vector(-66.7, 11.21, 0)),  # 10
    Part.LineSegment(App.Vector(-66.7, 11.21, 0), App.Vector(-65.76, 15.21, 0)),  # 11
    Part.LineSegment(App.Vector(-65.76, 15.21, 0), App.Vector(-64.66, 9.94, 0)),  # 12
], False)
sketch9.addConstraint([
    Sketcher.Constraint("Coincident", 0, 2, 1, 1),
    Sketcher.Constraint("Coincident", 1, 2, 2, 1),
    Sketcher.Constraint("Coincident", 2, 2, 3, 1),
    Sketcher.Constraint("Coincident", 3, 2, 4, 1),
    Sketcher.Constraint("Coincident", 4, 2, 5, 1),
    Sketcher.Constraint("Coincident", 5, 2, 6, 1),
    Sketcher.Constraint("Coincident", 6, 2, 7, 1),
    Sketcher.Constraint("Coincident", 7, 2, 8, 1),
    Sketcher.Constraint("Coincident", 8, 2, 0, 1),
    Sketcher.Constraint("Coincident", 9, 2, 10, 1),
    Sketcher.Constraint("Coincident", 10, 2, 11, 1),
    Sketcher.Constraint("Coincident", 11, 2, 12, 1),
    Sketcher.Constraint("Coincident", 12, 2, 9, 1),
    Sketcher.Constraint("Vertical", 3),
    Sketcher.Constraint("Vertical", 9),
    Sketcher.Constraint("Perpendicular", 0, 1),
    Sketcher.Constraint("Parallel", 1, 4),
    Sketcher.Constraint("Perpendicular", 4, 5),
    Sketcher.Constraint("Perpendicular", 5, 6),
    Sketcher.Constraint("Parallel", 2, 10),
    Sketcher.Constraint("Parallel", 6, 11),
    Sketcher.Constraint("Parallel", 7, 12),
    Sketcher.Constraint("Equal", 1, 4),
    Sketcher.Constraint("Equal", 7, 12),
    Sketcher.Constraint("Distance", 1, Q("0.3 in")),
    Sketcher.Constraint("DistanceY", 3, 1, 3, 2, Q("0.25 in")),
    Sketcher.Constraint("Distance", 5, Q("0.055 in")),
    Sketcher.Constraint("DistanceX", 9, 2, 3, 2, Q("0.055 in")),
    Sketcher.Constraint("DistanceX", 1, 2, -1, 1, Q("68.202301 mm")),
    Sketcher.Constraint("DistanceY", -1, 1, 2, 2, Q("3.423798 mm")),
    Sketcher.Constraint("DistanceY", 9, 2, 10, 2, Q("3.115699 mm")),
    Sketcher.Constraint("DistanceY", 11, 2, 5, 2, Q("2.3056 mm")),
    Sketcher.Constraint("Distance", 6, Q("5.155492 mm")),
    Sketcher.Constraint("Distance", 7, Q("5.383251 mm")),
    Sketcher.Constraint("Distance", 10, Q("3.729079 mm")),
    Sketcher.Constraint("DistanceY", 9, 2, 9, 1, Q("1.846025 mm")),
    Sketcher.Constraint("DistanceY", -1, 1, 0, 2, Q("18.357478 mm")),
    Sketcher.Constraint("DistanceY", -1, 1, 1, 2, Q("10.941528 mm")),
    Sketcher.Constraint("DistanceX", 8, 2, -1, 1, Q("64.975842 mm")),
])
pad6 = body2.newObject("PartDesign::Pad", "Pad005")
pad6.Profile = sketch9
pad6.Type = "UpToFirst"
doc.recompute()

fillet = body2.newObject("PartDesign::Fillet", "Fillet")
fillet.Base = (pad6, edges_at(pad6, [(0, 0, -12.7), (0, 12.7, -12.7)]))
fillet.Radius = Q("0.1 in")

# Sketch on an angled plane
sketch10 = body2.newObject("Sketcher::SketchObject", "Sketch009")
sketch10.Placement = App.Placement(App.Vector(-42.587829, -28.007498, 0), App.Rotation(App.Vector(0, 0, 1), App.Vector(-0.549468472, 0.835514451, 0), App.Vector(-0.835514451, -0.549468472, 0), "ZXY"))
sketch10.addGeometry([
    Part.LineSegment(App.Vector(-6.3, 46.6, 0), App.Vector(-6.3, 37.6, 0)),
    Part.LineSegment(App.Vector(-6.3, 37.6, 0), App.Vector(-2.5, 37.6, 0)),
    Part.LineSegment(App.Vector(-2.5, 37.6, 0), App.Vector(-2.5, 46.6, 0)),
    Part.LineSegment(App.Vector(-2.5, 46.6, 0), App.Vector(-6.3, 46.6, 0)),
], False)
sketch10.addConstraint([
    Sketcher.Constraint("Coincident", 0, 2, 1, 1),
    Sketcher.Constraint("Coincident", 1, 2, 2, 1),
    Sketcher.Constraint("Coincident", 2, 2, 3, 1),
    Sketcher.Constraint("Coincident", 3, 2, 0, 1),
    Sketcher.Constraint("Vertical", 0),
    Sketcher.Constraint("Horizontal", 1),
    Sketcher.Constraint("Vertical", 2),
    Sketcher.Constraint("Horizontal", 3),
    Sketcher.Constraint("DistanceX", 1, 1, 1, 2, Q("0.15 in")),
    Sketcher.Constraint("DistanceX", 1, 2, -1, 1, Q("0.1 in")),
    Sketcher.Constraint("DistanceY", 0, 2, 0, 1, Q("8.997726 mm")),
    Sketcher.Constraint("DistanceY", -1, 1, 2, 2, Q("46.616819 mm")),
])
pocket4 = body2.newObject("PartDesign::Pocket", "Pocket003")
pocket4.Profile = sketch10
pocket4.Length = 7.396239

# Sketch on an angled plane
sketch11 = body2.newObject("Sketcher::SketchObject", "Sketch010")
sketch11.Placement = App.Placement(App.Vector(-42.587829, -28.007498, 0), App.Rotation(App.Vector(0, 0, 1), App.Vector(-0.549468472, 0.835514451, 0), App.Vector(-0.835514451, -0.549468472, 0), "ZXY"))
sketch11.addGeometry([
    Part.LineSegment(App.Vector(2.5, 46.6, 0), App.Vector(2.5, 37.6, 0)),
    Part.LineSegment(App.Vector(2.5, 37.6, 0), App.Vector(6.3, 37.6, 0)),
    Part.LineSegment(App.Vector(6.3, 37.6, 0), App.Vector(6.3, 46.6, 0)),
    Part.LineSegment(App.Vector(6.3, 46.6, 0), App.Vector(2.5, 46.6, 0)),
], False)
sketch11.addConstraint([
    Sketcher.Constraint("Coincident", 0, 2, 1, 1),
    Sketcher.Constraint("Coincident", 1, 2, 2, 1),
    Sketcher.Constraint("Coincident", 2, 2, 3, 1),
    Sketcher.Constraint("Coincident", 3, 2, 0, 1),
    Sketcher.Constraint("Vertical", 0),
    Sketcher.Constraint("Horizontal", 1),
    Sketcher.Constraint("Vertical", 2),
    Sketcher.Constraint("Horizontal", 3),
    Sketcher.Constraint("DistanceX", 1, 1, 1, 2, Q("0.15 in")),
    Sketcher.Constraint("DistanceX", -1, 1, 0, 2, Q("0.1 in")),
    Sketcher.Constraint("DistanceY", 0, 2, 0, 1, Q("8.997726 mm")),
    Sketcher.Constraint("DistanceY", -1, 1, 2, 2, Q("46.616819 mm")),
])
pocket5 = body2.newObject("PartDesign::Pocket", "Pocket004")
pocket5.Profile = sketch11
pocket5.Length = 7.396239
mirroring.Visibility = False

doc.recompute()
